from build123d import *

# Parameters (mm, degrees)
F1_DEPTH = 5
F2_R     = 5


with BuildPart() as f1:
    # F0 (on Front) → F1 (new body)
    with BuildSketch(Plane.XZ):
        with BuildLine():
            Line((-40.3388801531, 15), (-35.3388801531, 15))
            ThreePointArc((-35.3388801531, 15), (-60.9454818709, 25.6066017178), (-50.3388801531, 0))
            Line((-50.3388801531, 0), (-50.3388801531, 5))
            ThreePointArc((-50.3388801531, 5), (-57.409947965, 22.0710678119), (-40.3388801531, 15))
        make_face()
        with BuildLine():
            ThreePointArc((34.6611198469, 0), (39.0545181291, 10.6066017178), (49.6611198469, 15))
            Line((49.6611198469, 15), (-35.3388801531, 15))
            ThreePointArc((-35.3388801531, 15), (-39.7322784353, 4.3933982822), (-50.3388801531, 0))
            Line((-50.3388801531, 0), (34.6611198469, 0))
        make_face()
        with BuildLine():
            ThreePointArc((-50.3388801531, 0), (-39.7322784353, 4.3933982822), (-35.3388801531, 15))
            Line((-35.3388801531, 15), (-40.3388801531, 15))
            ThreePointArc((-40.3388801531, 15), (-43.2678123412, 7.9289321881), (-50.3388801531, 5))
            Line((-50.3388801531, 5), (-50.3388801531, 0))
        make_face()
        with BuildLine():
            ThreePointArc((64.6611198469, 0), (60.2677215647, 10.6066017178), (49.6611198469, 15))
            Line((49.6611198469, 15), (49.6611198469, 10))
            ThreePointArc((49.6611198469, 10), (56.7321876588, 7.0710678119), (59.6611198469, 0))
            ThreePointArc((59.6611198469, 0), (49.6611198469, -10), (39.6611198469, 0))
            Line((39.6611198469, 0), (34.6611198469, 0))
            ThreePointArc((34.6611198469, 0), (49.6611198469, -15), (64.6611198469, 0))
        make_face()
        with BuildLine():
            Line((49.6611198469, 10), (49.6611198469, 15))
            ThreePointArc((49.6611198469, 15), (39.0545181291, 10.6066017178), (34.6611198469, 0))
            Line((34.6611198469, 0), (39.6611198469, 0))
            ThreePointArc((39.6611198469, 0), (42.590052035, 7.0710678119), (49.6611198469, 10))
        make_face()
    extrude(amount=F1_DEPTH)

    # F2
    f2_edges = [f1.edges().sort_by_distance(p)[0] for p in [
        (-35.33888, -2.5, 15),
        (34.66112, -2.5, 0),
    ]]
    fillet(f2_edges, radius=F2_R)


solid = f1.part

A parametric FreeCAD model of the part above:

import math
import FreeCAD as App
import Part
import Sketcher

V = App.Vector


def edges_at(feature, points):
    """Names of the edges that pass closest to the given points."""
    edges = feature.Shape.Edges
    near = lambda p: min(range(len(edges)), key=lambda i: edges[i].distToShape(Part.Vertex(*p))[0])
    return sorted({f"Edge{near(p) + 1}" for p in points})

doc = App.newDocument("Part")
params = doc.addObject("Spreadsheet::Sheet", "Params")
for row, (alias, value) in enumerate([
    ("sketch1_radius", "15 mm"),
    ("sketch1_radius2", "10 mm"),
    ("sketch1_width", "85 mm"),
    ("pad1_length", "5 mm"),
    ("fillet_radius", "5 mm"),
], start=1):
    params.set(f"A{row}", alias)
    params.set(f"B{row}", "=" + value)
    params.setAlias(f"B{row}", alias)

body = doc.addObject("PartDesign::Body", "Body")

# Sketch on XZ plane
sketch1 = body.newObject("Sketcher::SketchObject", "Sketch")
sketch1.AttachmentSupport = (doc.getObject("XZ_Plane"), [""])
sketch1.MapMode = "FlatFace"
sketch1.addGeometry(Part.ArcOfCircle(Part.Circle(V(-50.33888, 15, 0), V(0, 0, 1), 15), math.radians(0), math.radians(270)), False)
sketch1.addGeometry(Part.LineSegment(V(-50.33888, 0, 0), V(34.66112, 0, 0)), False)
sketch1.addGeometry(Part.ArcOfCircle(Part.Circle(V(49.66112, 0, 0), V(0, 0, 1), 15), math.radians(180), math.radians(450)), False)
sketch1.addGeometry(Part.LineSegment(V(49.66112, 15, 0), V(-35.33888, 15, 0)), False)
sketch1.addGeometry(Part.ArcOfCircle(Part.Circle(V(-50.33888, 15, 0), V(0, 0, 1), 10), math.radians(0), math.radians(270)), False)
sketch1.addGeometry(Part.ArcOfCircle(Part.Circle(V(-50.33888, 15, 0), V(0, 0, 1), 10), math.radians(-90), math.radians(0)), False)
sketch1.addGeometry(Part.ArcOfCircle(Part.Circle(V(49.66112, 0, 0), V(0, 0, 1), 10), math.radians(90), math.radians(180)), False)
sketch1.addGeometry(Part.ArcOfCircle(Part.Circle(V(49.66112, 0, 0), V(0, 0, 1), 10), math.radians(0), math.radians(90)), False)
sketch1.addGeometry(Part.ArcOfCircle(Part.Circle(V(49.66112, 0, 0), V(0, 0, 1), 10), math.radians(180), math.radians(360)), False)
sketch1.addConstraint(Sketcher.Constraint("Tangent", 0, 2, 1, 1))
sketch1.addConstraint(Sketcher.Constraint("Coincident", 1, 2, 2, 1))
sketch1.addConstraint(Sketcher.Constraint("Tangent", 2, 2, 3, 1))
sketch1.addConstraint(Sketcher.Constraint("Coincident", 3, 2, 0, 1))
sketch1.addConstraint(Sketcher.Constraint("Tangent", 4, 1, 5, 2))
sketch1.addConstraint(Sketcher.Constraint("Coincident", 5, 1, 4, 2))
sketch1.addConstraint(Sketcher.Constraint("Tangent", 6, 1, 7, 2))
sketch1.addConstraint(Sketcher.Constraint("Tangent", 7, 1, 8, 2))
sketch1.addConstraint(Sketcher.Constraint("Tangent", 8, 1, 6, 2))
sketch1.addConstraint(Sketcher.Constraint("Horizontal", 1))
sketch1.addConstraint(Sketcher.Constraint("Horizontal", 3))
sketch1.addConstraint(Sketcher.Constraint("Coincident", 4, 3, 0, 3))
sketch1.addConstraint(Sketcher.Constraint("Coincident", 6, 3, 2, 3))
sketch1.addConstraint(Sketcher.Constraint("Equal", 0, 2))
sketch1.addConstraint(Sketcher.Constraint("Equal", 5, 6))
sketch1.addConstraint(Sketcher.Constraint("PointOnObject", 2, 3, -1))
sketch1.addConstraint(Sketcher.Constraint("PointOnObject", 0, 2, -1))
sketch1.addConstraint(Sketcher.Constraint("PointOnObject", 7, 1, -1))
sketch1.addConstraint(Sketcher.Constraint("PointOnObject", 8, 1, -1))
sketch1.addConstraint(Sketcher.Constraint("Horizontal", 3, 2, 4, 1))
sketch1.addConstraint(Sketcher.Constraint("Vertical", 0, 2, 5, 1))
sketch1.addConstraint(Sketcher.Constraint("Vertical", 2, 2, 6, 1))
sketch1.addConstraint(Sketcher.Constraint("Radius", 0, 15.0))
sketch1.addConstraint(Sketcher.Constraint("Radius", 4, 10.0))
sketch1.addConstraint(Sketcher.Constraint("DistanceX", 1, 1, 1, 2, 85.0))
sketch1.addConstraint(Sketcher.Constraint("DistanceX", 0, 3, -1, 1, 50.33888))
sketch1.setExpression("Constraints[22]", "Params.sketch1_radius")
sketch1.setExpression("Constraints[23]", "Params.sketch1_radius2")
sketch1.setExpression("Constraints[24]", "Params.sketch1_width")
pad1 = body.newObject("PartDesign::Pad", "Pad")
pad1.Profile = sketch1
pad1.setExpression("Length", "Params.pad1_length")
doc.recompute()

fillet = body.newObject("PartDesign::Fillet", "Fillet")
fillet.Base = (pad1, edges_at(pad1, [(-35.339, -2.5, 15), (34.661, -2.5, 0)]))
fillet.setExpression("Radius", "Params.fillet_radius")

doc.recompute()
